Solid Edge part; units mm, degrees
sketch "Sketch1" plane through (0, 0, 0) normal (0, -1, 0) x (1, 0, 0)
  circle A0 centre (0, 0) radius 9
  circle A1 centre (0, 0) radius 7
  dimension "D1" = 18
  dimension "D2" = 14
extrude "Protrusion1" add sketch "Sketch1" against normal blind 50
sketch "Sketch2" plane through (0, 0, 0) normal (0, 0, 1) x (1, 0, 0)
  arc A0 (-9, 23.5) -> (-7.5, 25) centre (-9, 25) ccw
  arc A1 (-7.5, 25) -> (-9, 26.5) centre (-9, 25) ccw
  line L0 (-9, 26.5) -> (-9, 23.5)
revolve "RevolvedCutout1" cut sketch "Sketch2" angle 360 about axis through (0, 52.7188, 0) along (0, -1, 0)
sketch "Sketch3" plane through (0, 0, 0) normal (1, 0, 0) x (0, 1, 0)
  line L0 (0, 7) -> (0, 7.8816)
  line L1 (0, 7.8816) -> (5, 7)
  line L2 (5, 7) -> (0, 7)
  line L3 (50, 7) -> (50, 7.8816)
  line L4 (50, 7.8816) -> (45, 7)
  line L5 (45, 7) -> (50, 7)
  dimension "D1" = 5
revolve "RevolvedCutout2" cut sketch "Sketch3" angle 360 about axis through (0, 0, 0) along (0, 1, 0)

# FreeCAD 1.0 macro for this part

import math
import FreeCAD as App
import Part
import Sketcher
Q = App.Units.Quantity

doc = App.newDocument("Part")
body = doc.addObject("PartDesign::Body", "Body")

# Sketch on XZ plane
sketch1 = body.newObject("Sketcher::SketchObject", "Sketch")
sketch1.AttachmentSupport = (doc.getObject("XZ_Plane"), [""])
sketch1.MapMode = "FlatFace"
sketch1.addGeometry(Part.Circle(App.Vector(0, 0, 0), App.Vector(0, 0, 1), 9), False)
sketch1.addGeometry(Part.Circle(App.Vector(0, 0, 0), App.Vector(0, 0, 1), 7), False)
sketch1.addConstraint(Sketcher.Constraint("Coincident", 0, 3, -1, 1))
sketch1.addConstraint(Sketcher.Constraint("Coincident", 1, 3, -1, 1))
sketch1.addConstraint(Sketcher.Constraint("Diameter", 0, Q("18 mm")))
sketch1.addConstraint(Sketcher.Constraint("Diameter", 1, Q("14 mm")))
pad1 = body.newObject("PartDesign::Pad", "Pad")
pad1.Profile = sketch1
pad1.Length = 50
pad1.Reversed = True

# Sketch on XY plane
sketch2 = body.newObject("Sketcher::SketchObject", "Sketch001")
sketch2.AttachmentSupport = (doc.getObject("XY_Plane"), [""])
sketch2.MapMode = "FlatFace"
sketch2.addGeometry(Part.LineSegment(App.Vector(-9, 26.5, 0), App.Vector(-9, 23.5, 0)), False)
sketch2.addGeometry(Part.ArcOfCircle(Part.Circle(App.Vector(-9, 25, 0), App.Vector(0, 0, 1), 1.5), math.radians(-90), math.radians(90)), False)
sketch2.addConstraint(Sketcher.Constraint("Coincident", 0, 1, 1, 2))
sketch2.addConstraint(Sketcher.Constraint("Coincident", 1, 1, 0, 2))
sketch2.addConstraint(Sketcher.Constraint("Vertical", 0))
sketch2.addConstraint(Sketcher.Constraint("Vertical", 1, 3, 0, 1))
sketch2.addConstraint(Sketcher.Constraint("Radius", 1, Q("1.5 mm")))
sketch2.addConstraint(Sketcher.Constraint("DistanceX", 1, 3, -1, 1, Q("9 mm")))
sketch2.addConstraint(Sketcher.Constraint("DistanceY", -1, 1, 1, 3, Q("25 mm")))
groove = body.newObject("PartDesign::Groove", "Groove")
groove.Profile = sketch2
groove.ReferenceAxis = (sketch2, ["V_Axis"])
groove.Angle = 360

# Sketch on YZ plane
sketch3 = body.newObject("Sketcher::SketchObject", "Sketch002")
sketch3.AttachmentSupport = (doc.getObject("YZ_Plane"), [""])
sketch3.MapMode = "FlatFace"
sketch3.addGeometry(Part.LineSegment(App.Vector(0, 7.9, 0), App.Vector(0, 7, 0)), False)
sketch3.addGeometry(Part.LineSegment(App.Vector(0, 7, 0), App.Vector(5, 7, 0)), False)
sketch3.addGeometry(Part.LineSegment(App.Vector(5, 7, 0), App.Vector(0, 7.9, 0)), False)
sketch3.addGeometry(Part.LineSegment(App.Vector(45, 7, 0), App.Vector(50, 7, 0)), False)
sketch3.addGeometry(Part.LineSegment(App.Vector(50, 7, 0), App.Vector(50, 7.9, 0)), False)
sketch3.addGeometry(Part.LineSegment(App.Vector(50, 7.9, 0), App.Vector(45, 7, 0)), False)
sketch3.addConstraint(Sketcher.Constraint("Coincident", 0, 2, 1, 1))
sketch3.addConstraint(Sketcher.Constraint("Coincident", 1, 2, 2, 1))
sketch3.addConstraint(Sketcher.Constraint("Coincident", 2, 2, 0, 1))
sketch3.addConstraint(Sketcher.Constraint("Coincident", 3, 2, 4, 1))
sketch3.addConstraint(Sketcher.Constraint("Coincident", 4, 2, 5, 1))
sketch3.addConstraint(Sketcher.Constraint("Coincident", 5, 2, 3, 1))
sketch3.addConstraint(Sketcher.Constraint("Vertical", 0))
sketch3.addConstraint(Sketcher.Constraint("Horizontal", 1))
sketch3.addConstraint(Sketcher.Constraint("Horizontal", 3))
sketch3.addConstraint(Sketcher.Constraint("Vertical", 4))
sketch3.addConstraint(Sketcher.Constraint("PointOnObject", 0, 2, -2))
sketch3.addConstraint(Sketcher.Constraint("Horizontal", 1, 2, 3, 2))
sketch3.addConstraint(Sketcher.Constraint("Horizontal", 2, 2, 4, 2))
sketch3.addConstraint(Sketcher.Constraint("Equal", 1, 3))
sketch3.addConstraint(Sketcher.Constraint("DistanceX", 1, 1, 1, 2, Q("5 mm")))
sketch3.addConstraint(Sketcher.Constraint("Angle", 2, Q("170.0004 deg")))
sketch3.addConstraint(Sketcher.Constraint("DistanceY", -1, 1, 0, 2, Q("7 mm")))
sketch3.addConstraint(Sketcher.Constraint("DistanceX", -1, 1, 3, 2, Q("50 mm")))
groove2 = body.newObject("PartDesign::Groove", "Groove001")
groove2.Profile = sketch3
groove2.ReferenceAxis = (sketch3, ["H_Axis"])
groove2.Angle = 360

doc.recompute()
